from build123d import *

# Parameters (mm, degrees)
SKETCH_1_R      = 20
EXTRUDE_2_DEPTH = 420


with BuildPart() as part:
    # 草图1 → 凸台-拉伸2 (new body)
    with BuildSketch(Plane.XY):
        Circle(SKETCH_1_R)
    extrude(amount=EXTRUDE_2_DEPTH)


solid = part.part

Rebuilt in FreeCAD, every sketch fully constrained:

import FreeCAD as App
import Part
import Sketcher
from FreeCAD import Vector

doc = App.newDocument("Part")
body = doc.addObject("PartDesign::Body", "Body")

sketch1 = doc.addObject("Sketcher::SketchObject", "Sketch")
body.addObject(sketch1)
sketch1.AttachmentSupport = (doc.XY_Plane, [""])
sketch1.MapMode = "FlatFace"
sketch1.addGeometry(Part.Circle(Vector(0, 0, 0), Vector(0, 0, 1), 20), False)
sketch1.addConstraint(Sketcher.Constraint("Coincident", 0, 3, -1, 1))
sketch1.addConstraint(Sketcher.Constraint("Diameter", 0, 40.0))
pad1 = doc.addObject("PartDesign::Pad", "Pad")
body.addObject(pad1)
pad1.Profile = sketch1
pad1.Length = 420

doc.recompute()
